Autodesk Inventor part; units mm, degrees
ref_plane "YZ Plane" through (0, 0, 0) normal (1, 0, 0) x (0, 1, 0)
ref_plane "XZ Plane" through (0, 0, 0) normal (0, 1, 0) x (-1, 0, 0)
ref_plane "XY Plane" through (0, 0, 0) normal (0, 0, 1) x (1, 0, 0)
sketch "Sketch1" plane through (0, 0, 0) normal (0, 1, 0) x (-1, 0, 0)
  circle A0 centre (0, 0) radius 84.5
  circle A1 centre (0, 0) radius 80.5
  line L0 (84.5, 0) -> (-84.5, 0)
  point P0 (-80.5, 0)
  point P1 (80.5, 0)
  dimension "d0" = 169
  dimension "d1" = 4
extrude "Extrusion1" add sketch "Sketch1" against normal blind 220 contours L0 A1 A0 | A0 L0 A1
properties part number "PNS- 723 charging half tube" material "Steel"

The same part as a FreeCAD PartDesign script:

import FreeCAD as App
import Part
import Sketcher
Q = App.Units.Quantity

doc = App.newDocument("Part")
body = doc.addObject("PartDesign::Body", "Body")

# Sketch on XZ plane
sketch1 = doc.addObject("Sketcher::SketchObject", "Sketch")
body.addObject(sketch1)
sketch1.AttachmentSupport = (doc.XZ_Plane, [""])
sketch1.MapMode = "FlatFace"
sketch1.addGeometry([
    Part.Circle(App.Vector(0, 0, 0), App.Vector(0, 0, 1), 84),
    Part.Circle(App.Vector(0, 0, 0), App.Vector(0, 0, 1), 80),
], False)
sketch1.addConstraint([
    Sketcher.Constraint("Coincident", 0, 3, -1, 1),
    Sketcher.Constraint("Coincident", 1, 3, -1, 1),
    Sketcher.Constraint("Diameter", 0, Q("169 mm")),
    Sketcher.Constraint("Diameter", 1, Q("161 mm")),
])
pad1 = doc.addObject("PartDesign::Pad", "Pad")
body.addObject(pad1)
pad1.Profile = sketch1
pad1.Length = 220

doc.recompute()
